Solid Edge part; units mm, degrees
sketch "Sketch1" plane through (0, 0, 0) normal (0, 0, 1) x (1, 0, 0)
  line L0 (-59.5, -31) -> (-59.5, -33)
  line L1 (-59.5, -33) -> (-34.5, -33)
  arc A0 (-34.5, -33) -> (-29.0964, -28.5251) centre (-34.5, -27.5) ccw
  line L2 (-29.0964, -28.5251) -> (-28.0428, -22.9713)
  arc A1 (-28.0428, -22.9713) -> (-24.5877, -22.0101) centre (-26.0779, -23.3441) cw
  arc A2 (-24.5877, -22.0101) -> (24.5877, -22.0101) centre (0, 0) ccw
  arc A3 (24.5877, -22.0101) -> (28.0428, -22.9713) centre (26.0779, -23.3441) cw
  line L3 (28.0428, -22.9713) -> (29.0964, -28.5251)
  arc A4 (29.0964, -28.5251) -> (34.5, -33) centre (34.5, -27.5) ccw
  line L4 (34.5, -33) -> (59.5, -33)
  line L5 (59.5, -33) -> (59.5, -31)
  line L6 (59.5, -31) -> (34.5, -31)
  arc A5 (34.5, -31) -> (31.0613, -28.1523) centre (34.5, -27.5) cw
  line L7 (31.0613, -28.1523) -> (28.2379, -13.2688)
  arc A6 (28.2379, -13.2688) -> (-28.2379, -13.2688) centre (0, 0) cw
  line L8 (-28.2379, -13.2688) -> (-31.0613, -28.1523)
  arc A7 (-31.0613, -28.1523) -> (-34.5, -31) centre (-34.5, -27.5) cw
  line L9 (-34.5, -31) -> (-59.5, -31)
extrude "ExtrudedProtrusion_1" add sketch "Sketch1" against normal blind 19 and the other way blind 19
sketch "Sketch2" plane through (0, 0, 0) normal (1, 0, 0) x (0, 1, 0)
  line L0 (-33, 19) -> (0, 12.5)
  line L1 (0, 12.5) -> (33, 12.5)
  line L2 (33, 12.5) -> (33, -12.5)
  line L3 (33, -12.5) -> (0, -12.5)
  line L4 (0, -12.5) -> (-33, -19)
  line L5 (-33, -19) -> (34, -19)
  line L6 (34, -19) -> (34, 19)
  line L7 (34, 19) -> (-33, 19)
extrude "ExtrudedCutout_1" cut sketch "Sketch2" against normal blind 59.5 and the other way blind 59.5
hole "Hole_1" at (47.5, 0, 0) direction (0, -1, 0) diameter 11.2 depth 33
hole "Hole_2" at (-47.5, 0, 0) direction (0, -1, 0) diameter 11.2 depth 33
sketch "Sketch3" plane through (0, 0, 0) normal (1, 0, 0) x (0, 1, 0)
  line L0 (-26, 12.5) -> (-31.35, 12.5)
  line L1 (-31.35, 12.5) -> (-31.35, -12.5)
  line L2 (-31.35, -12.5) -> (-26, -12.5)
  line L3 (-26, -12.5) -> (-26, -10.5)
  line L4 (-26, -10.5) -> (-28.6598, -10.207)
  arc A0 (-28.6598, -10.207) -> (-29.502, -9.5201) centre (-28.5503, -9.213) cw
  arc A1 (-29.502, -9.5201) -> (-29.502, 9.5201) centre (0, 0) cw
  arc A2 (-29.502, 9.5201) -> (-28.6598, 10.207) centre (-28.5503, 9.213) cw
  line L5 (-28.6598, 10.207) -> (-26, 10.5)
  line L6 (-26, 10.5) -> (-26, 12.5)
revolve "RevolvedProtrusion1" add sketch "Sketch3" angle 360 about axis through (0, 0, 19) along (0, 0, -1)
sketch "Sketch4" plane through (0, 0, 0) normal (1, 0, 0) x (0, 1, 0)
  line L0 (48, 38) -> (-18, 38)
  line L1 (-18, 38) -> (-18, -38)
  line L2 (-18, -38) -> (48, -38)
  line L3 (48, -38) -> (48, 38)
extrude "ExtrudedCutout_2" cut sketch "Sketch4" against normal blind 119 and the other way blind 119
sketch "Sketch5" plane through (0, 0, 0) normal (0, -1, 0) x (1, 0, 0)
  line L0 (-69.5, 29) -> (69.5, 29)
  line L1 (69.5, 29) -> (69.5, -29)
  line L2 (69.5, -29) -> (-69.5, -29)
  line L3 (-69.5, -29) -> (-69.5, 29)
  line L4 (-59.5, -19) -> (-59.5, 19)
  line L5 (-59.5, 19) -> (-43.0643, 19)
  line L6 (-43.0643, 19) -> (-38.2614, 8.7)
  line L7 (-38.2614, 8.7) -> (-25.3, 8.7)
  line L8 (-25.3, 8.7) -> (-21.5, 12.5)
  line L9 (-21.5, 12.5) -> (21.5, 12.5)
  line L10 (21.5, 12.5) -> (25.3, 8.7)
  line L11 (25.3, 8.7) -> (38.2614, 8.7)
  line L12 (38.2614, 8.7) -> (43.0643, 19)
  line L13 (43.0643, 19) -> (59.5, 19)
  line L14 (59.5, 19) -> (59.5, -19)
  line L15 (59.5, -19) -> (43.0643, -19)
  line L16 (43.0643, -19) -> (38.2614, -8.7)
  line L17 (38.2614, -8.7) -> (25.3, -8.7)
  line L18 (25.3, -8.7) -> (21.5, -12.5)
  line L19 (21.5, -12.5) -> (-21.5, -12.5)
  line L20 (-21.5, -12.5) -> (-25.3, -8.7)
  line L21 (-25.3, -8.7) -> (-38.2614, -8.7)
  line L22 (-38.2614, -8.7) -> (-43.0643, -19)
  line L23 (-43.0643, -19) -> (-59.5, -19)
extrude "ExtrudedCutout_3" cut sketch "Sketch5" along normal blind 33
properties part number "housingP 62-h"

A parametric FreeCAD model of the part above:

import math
import FreeCAD as App
import Part
import Sketcher
Q = App.Units.Quantity


def add_polygon(sketch, points):
    """Adds a closed chain of lines whose ends are joined by coincident constraints."""
    first, n = sketch.GeometryCount, len(points)
    for a, b in zip(points, points[1:] + points[:1]):
        sketch.addGeometry(Part.LineSegment(App.Vector(*a, 0), App.Vector(*b, 0)), False)
    for i in range(n):
        sketch.addConstraint(Sketcher.Constraint("Coincident", first + i, 2, first + (i + 1) % n, 1))

doc = App.newDocument("Part")
body = doc.addObject("PartDesign::Body", "Body")

# Sketch on XY plane
sketch1 = body.newObject("Sketcher::SketchObject", "Sketch")
sketch1.AttachmentSupport = (doc.getObject("XY_Plane"), [""])
sketch1.MapMode = "FlatFace"
sketch1.addGeometry(Part.LineSegment(App.Vector(-34.5, -31, 0), App.Vector(-59.5, -31, 0)), False)
sketch1.addGeometry(Part.LineSegment(App.Vector(-59.5, -31, 0), App.Vector(-59.5, -33, 0)), False)
sketch1.addGeometry(Part.LineSegment(App.Vector(-59.5, -33, 0), App.Vector(-34.5, -33, 0)), False)
sketch1.addGeometry(Part.ArcOfCircle(Part.Circle(App.Vector(-34.5, -27.5, 0), App.Vector(0, 0, 1), 5.5), math.radians(-90), math.radians(-11)), False)
sketch1.addGeometry(Part.LineSegment(App.Vector(-29.1, -28.5, 0), App.Vector(-28, -23, 0)), False)
sketch1.addGeometry(Part.ArcOfCircle(Part.Circle(App.Vector(-26.1, -23.3, 0), App.Vector(0, 0, 1), 2), math.radians(42), math.radians(169)), False)
sketch1.addGeometry(Part.ArcOfCircle(Part.Circle(App.Vector(0, 0, 0), App.Vector(0, 0, 1), 33), math.radians(-138), math.radians(-42)), False)
sketch1.addGeometry(Part.ArcOfCircle(Part.Circle(App.Vector(26.1, -23.3, 0), App.Vector(0, 0, 1), 2), math.radians(11), math.radians(138)), False)
sketch1.addGeometry(Part.LineSegment(App.Vector(28, -23, 0), App.Vector(29.1, -28.5, 0)), False)
sketch1.addGeometry(Part.ArcOfCircle(Part.Circle(App.Vector(34.5, -27.5, 0), App.Vector(0, 0, 1), 5.5), math.radians(-169), math.radians(-90)), False)
sketch1.addGeometry(Part.LineSegment(App.Vector(34.5, -33, 0), App.Vector(59.5, -33, 0)), False)
sketch1.addGeometry(Part.LineSegment(App.Vector(59.5, -33, 0), App.Vector(59.5, -31, 0)), False)
sketch1.addGeometry(Part.LineSegment(App.Vector(59.5, -31, 0), App.Vector(34.5, -31, 0)), False)
sketch1.addGeometry(Part.ArcOfCircle(Part.Circle(App.Vector(34.5, -27.5, 0), App.Vector(0, 0, 1), 3.5), math.radians(-169), math.radians(-90)), False)
sketch1.addGeometry(Part.LineSegment(App.Vector(31.1, -28.2, 0), App.Vector(28.2, -13.3, 0)), False)
sketch1.addGeometry(Part.ArcOfCircle(Part.Circle(App.Vector(0, 0, 0), App.Vector(0, 0, 1), 31.2), math.radians(-155), math.radians(-25)), False)
sketch1.addGeometry(Part.LineSegment(App.Vector(-28.2, -13.3, 0), App.Vector(-31.1, -28.2, 0)), False)
sketch1.addGeometry(Part.ArcOfCircle(Part.Circle(App.Vector(-34.5, -27.5, 0), App.Vector(0, 0, 1), 3.5), math.radians(-90), math.radians(-11)), False)
sketch1.addConstraint(Sketcher.Constraint("Coincident", 0, 2, 1, 1))
sketch1.addConstraint(Sketcher.Constraint("Coincident", 1, 2, 2, 1))
sketch1.addConstraint(Sketcher.Constraint("Tangent", 2, 2, 3, 1))
sketch1.addConstraint(Sketcher.Constraint("Tangent", 3, 2, 4, 1))
sketch1.addConstraint(Sketcher.Constraint("Tangent", 4, 2, 5, 2))
sketch1.addConstraint(Sketcher.Constraint("Tangent", 5, 1, 6, 1))
sketch1.addConstraint(Sketcher.Constraint("Tangent", 6, 2, 7, 2))
sketch1.addConstraint(Sketcher.Constraint("Tangent", 7, 1, 8, 1))
sketch1.addConstraint(Sketcher.Constraint("Tangent", 8, 2, 9, 1))
sketch1.addConstraint(Sketcher.Constraint("Tangent", 9, 2, 10, 1))
sketch1.addConstraint(Sketcher.Constraint("Coincident", 10, 2, 11, 1))
sketch1.addConstraint(Sketcher.Constraint("Coincident", 11, 2, 12, 1))
sketch1.addConstraint(Sketcher.Constraint("Tangent", 12, 2, 13, 2))
sketch1.addConstraint(Sketcher.Constraint("Tangent", 13, 1, 14, 1))
sketch1.addConstraint(Sketcher.Constraint("Coincident", 14, 2, 15, 2))
sketch1.addConstraint(Sketcher.Constraint("Coincident", 15, 1, 16, 1))
sketch1.addConstraint(Sketcher.Constraint("Tangent", 16, 2, 17, 2))
sketch1.addConstraint(Sketcher.Constraint("Tangent", 17, 1, 0, 1))
sketch1.addConstraint(Sketcher.Constraint("Horizontal", 0))
sketch1.addConstraint(Sketcher.Constraint("Vertical", 1))
sketch1.addConstraint(Sketcher.Constraint("Horizontal", 2))
sketch1.addConstraint(Sketcher.Constraint("Horizontal", 10))
sketch1.addConstraint(Sketcher.Constraint("Vertical", 11))
sketch1.addConstraint(Sketcher.Constraint("Horizontal", 12))
sketch1.addConstraint(Sketcher.Constraint("Coincident", 6, 3, -1, 1))
sketch1.addConstraint(Sketcher.Constraint("Coincident", 15, 3, -1, 1))
sketch1.addConstraint(Sketcher.Constraint("Coincident", 13, 3, 9, 3))
sketch1.addConstraint(Sketcher.Constraint("Coincident", 17, 3, 3, 3))
sketch1.addConstraint(Sketcher.Constraint("Equal", 5, 7))
sketch1.addConstraint(Sketcher.Constraint("Equal", 3, 9))
sketch1.addConstraint(Sketcher.Constraint("Equal", 13, 17))
sketch1.addConstraint(Sketcher.Constraint("Symmetric", 3, 3, 9, 3, -2))
sketch1.addConstraint(Sketcher.Constraint("Parallel", 8, 14))
sketch1.addConstraint(Sketcher.Constraint("Parallel", 4, 16))
sketch1.addConstraint(Sketcher.Constraint("Horizontal", 5, 3, 7, 3))
sketch1.addConstraint(Sketcher.Constraint("Equal", 2, 10))
sketch1.addConstraint(Sketcher.Constraint("Radius", 5, Q("2 mm")))
sketch1.addConstraint(Sketcher.Constraint("Radius", 6, Q("33 mm")))
sketch1.addConstraint(Sketcher.Constraint("Radius", 3, Q("5.5 mm")))
sketch1.addConstraint(Sketcher.Constraint("Radius", 13, Q("3.5 mm")))
sketch1.addConstraint(Sketcher.Constraint("Radius", 15, Q("31.2 mm")))
sketch1.addConstraint(Sketcher.Constraint("DistanceX", 0, 2, 0, 1, Q("25 mm")))
sketch1.addConstraint(Sketcher.Constraint("DistanceY", 0, 2, -1, 1, Q("31 mm")))
sketch1.addConstraint(Sketcher.Constraint("DistanceX", 3, 3, 9, 3, Q("69 mm")))
sketch1.addConstraint(Sketcher.Constraint("DistanceY", 6, 2, -1, 1, Q("22.01 mm")))
pad1 = body.newObject("PartDesign::Pad", "Pad")
pad1.Profile = sketch1
pad1.Type = "TwoLengths"
pad1.Length = 19
pad1.Length2 = 19
pad1.Reversed = True

# Sketch on YZ plane
sketch2 = body.newObject("Sketcher::SketchObject", "Sketch001")
sketch2.AttachmentSupport = (doc.getObject("YZ_Plane"), [""])
sketch2.MapMode = "FlatFace"
add_polygon(sketch2, [(34, 19), (-33, 19), (0, 12), (33, 12), (33, -12), (0, -12), (-33, -19), (34, -19)])  # lines 0-7
sketch2.addConstraint(Sketcher.Constraint("Horizontal", 0))
sketch2.addConstraint(Sketcher.Constraint("Horizontal", 2))
sketch2.addConstraint(Sketcher.Constraint("Vertical", 3))
sketch2.addConstraint(Sketcher.Constraint("Horizontal", 4))
sketch2.addConstraint(Sketcher.Constraint("Horizontal", 6))
sketch2.addConstraint(Sketcher.Constraint("Vertical", 7))
sketch2.addConstraint(Sketcher.Constraint("Symmetric", 1, 2, 4, 2, -1, 1))
sketch2.addConstraint(Sketcher.Constraint("Symmetric", 0, 2, 5, 2, -1))
sketch2.addConstraint(Sketcher.Constraint("PointOnObject", 1, 2, -2))
sketch2.addConstraint(Sketcher.Constraint("DistanceX", 0, 2, 0, 1, Q("67 mm")))
sketch2.addConstraint(Sketcher.Constraint("DistanceX", 2, 1, 2, 2, Q("33 mm")))
sketch2.addConstraint(Sketcher.Constraint("DistanceY", 3, 2, 3, 1, Q("25 mm")))
sketch2.addConstraint(Sketcher.Constraint("DistanceY", 7, 1, 7, 2, Q("38 mm")))
sketch2.addConstraint(Sketcher.Constraint("DistanceX", 0, 2, -1, 1, Q("33 mm")))
pocket1 = body.newObject("PartDesign::Pocket", "Pocket")
pocket1.Profile = sketch2
pocket1.Type = "ThroughAll"
pocket1.Midplane = True

# Sketch on XZ plane
sketch3 = body.newObject("Sketcher::SketchObject", "Sketch002")
sketch3.AttachmentSupport = (doc.getObject("XZ_Plane"), [""])
sketch3.MapMode = "FlatFace"
sketch3.addGeometry(Part.Circle(App.Vector(48, 0, 0), App.Vector(0, 0, 1), 6), False)
sketch3.addConstraint(Sketcher.Constraint("PointOnObject", 0, 3, -1))
sketch3.addConstraint(Sketcher.Constraint("Diameter", 0, Q("11.2 mm")))
sketch3.addConstraint(Sketcher.Constraint("DistanceX", -1, 1, 0, 3, Q("47.5 mm")))
doc.recompute()
hole = body.newObject("PartDesign::Hole", "Hole")
hole.Profile = sketch3
hole.ThreadType = "None"
hole.Diameter = 11.2
hole.DepthType = "Dimension"
hole.Depth = 33
hole.DrillPoint = "Flat"
hole.Reversed = True

# Sketch on XZ plane
sketch4 = body.newObject("Sketcher::SketchObject", "Sketch003")
sketch4.AttachmentSupport = (doc.getObject("XZ_Plane"), [""])
sketch4.MapMode = "FlatFace"
sketch4.addGeometry(Part.Circle(App.Vector(-48, 0, 0), App.Vector(0, 0, 1), 6), False)
sketch4.addConstraint(Sketcher.Constraint("PointOnObject", 0, 3, -1))
sketch4.addConstraint(Sketcher.Constraint("Diameter", 0, Q("11.2 mm")))
sketch4.addConstraint(Sketcher.Constraint("DistanceX", 0, 3, -1, 1, Q("47.5 mm")))
doc.recompute()
hole2 = body.newObject("PartDesign::Hole", "Hole001")
hole2.Profile = sketch4
hole2.ThreadType = "None"
hole2.Diameter = 11.2
hole2.DepthType = "Dimension"
hole2.Depth = 33
hole2.DrillPoint = "Flat"
hole2.Reversed = True

# Sketch on YZ plane
sketch5 = body.newObject("Sketcher::SketchObject", "Sketch004")
sketch5.AttachmentSupport = (doc.getObject("YZ_Plane"), [""])
sketch5.MapMode = "FlatFace"
sketch5.addGeometry(Part.LineSegment(App.Vector(-26, 10.5, 0), App.Vector(-26, 12.5, 0)), False)
sketch5.addGeometry(Part.LineSegment(App.Vector(-26, 12.5, 0), App.Vector(-31.4, 12.5, 0)), False)
sketch5.addGeometry(Part.LineSegment(App.Vector(-31.4, 12.5, 0), App.Vector(-31.4, -12.5, 0)), False)
sketch5.addGeometry(Part.LineSegment(App.Vector(-31.4, -12.5, 0), App.Vector(-26, -12.5, 0)), False)
sketch5.addGeometry(Part.LineSegment(App.Vector(-26, -12.5, 0), App.Vector(-26, -10.5, 0)), False)
sketch5.addGeometry(Part.LineSegment(App.Vector(-26, -10.5, 0), App.Vector(-28.7, -10.2, 0)), False)
sketch5.addGeometry(Part.ArcOfCircle(Part.Circle(App.Vector(-28.6, -9.2, 0), App.Vector(0, 0, 1), 1), math.radians(-162), math.radians(-96)), False)
sketch5.addGeometry(Part.ArcOfCircle(Part.Circle(App.Vector(0, 0, 0), App.Vector(0, 0, 1), 31), math.radians(162), math.radians(198)), False)
sketch5.addGeometry(Part.ArcOfCircle(Part.Circle(App.Vector(-28.6, 9.2, 0), App.Vector(0, 0, 1), 1), math.radians(96), math.radians(162)), False)
sketch5.addGeometry(Part.LineSegment(App.Vector(-28.7, 10.2, 0), App.Vector(-26, 10.5, 0)), False)
sketch5.addConstraint(Sketcher.Constraint("Coincident", 0, 2, 1, 1))
sketch5.addConstraint(Sketcher.Constraint("Coincident", 1, 2, 2, 1))
sketch5.addConstraint(Sketcher.Constraint("Coincident", 2, 2, 3, 1))
sketch5.addConstraint(Sketcher.Constraint("Coincident", 3, 2, 4, 1))
sketch5.addConstraint(Sketcher.Constraint("Coincident", 4, 2, 5, 1))
sketch5.addConstraint(Sketcher.Constraint("Tangent", 5, 2, 6, 2))
sketch5.addConstraint(Sketcher.Constraint("Tangent", 6, 1, 7, 2))
sketch5.addConstraint(Sketcher.Constraint("Tangent", 7, 1, 8, 2))
sketch5.addConstraint(Sketcher.Constraint("Tangent", 8, 1, 9, 1))
sketch5.addConstraint(Sketcher.Constraint("Coincident", 9, 2, 0, 1))
sketch5.addConstraint(Sketcher.Constraint("Vertical", 0))
sketch5.addConstraint(Sketcher.Constraint("Horizontal", 1))
sketch5.addConstraint(Sketcher.Constraint("Vertical", 2))
sketch5.addConstraint(Sketcher.Constraint("Horizontal", 3))
sketch5.addConstraint(Sketcher.Constraint("Vertical", 4))
sketch5.addConstraint(Sketcher.Constraint("Coincident", 7, 3, -1, 1))
sketch5.addConstraint(Sketcher.Constraint("Equal", 6, 8))
sketch5.addConstraint(Sketcher.Constraint("Symmetric", 0, 2, 3, 2, -1))
sketch5.addConstraint(Sketcher.Constraint("Symmetric", 5, 2, 8, 1, -1))
sketch5.addConstraint(Sketcher.Constraint("Radius", 6, Q("1 mm")))
sketch5.addConstraint(Sketcher.Constraint("Radius", 7, Q("31 mm")))
sketch5.addConstraint(Sketcher.Constraint("DistanceY", 0, 1, 0, 2, Q("2 mm")))
sketch5.addConstraint(Sketcher.Constraint("DistanceY", 2, 2, 2, 1, Q("25 mm")))
sketch5.addConstraint(Sketcher.Constraint("DistanceX", 0, 2, -1, 1, Q("26 mm")))
sketch5.addConstraint(Sketcher.Constraint("DistanceX", 1, 2, 1, 1, Q("5.35 mm")))
sketch5.addConstraint(Sketcher.Constraint("DistanceY", 6, 1, -1, 1, Q("9.52 mm")))
revolution = body.newObject("PartDesign::Revolution", "Revolution")
revolution.Profile = sketch5
revolution.ReferenceAxis = (sketch5, ["V_Axis"])
revolution.Angle = 360

# Sketch on YZ plane
sketch6 = body.newObject("Sketcher::SketchObject", "Sketch005")
sketch6.AttachmentSupport = (doc.getObject("YZ_Plane"), [""])
sketch6.MapMode = "FlatFace"
add_polygon(sketch6, [(48, -38), (48, 38), (-18, 38), (-18, -38)])  # lines 0-3
sketch6.addConstraint(Sketcher.Constraint("Vertical", 0))
sketch6.addConstraint(Sketcher.Constraint("Horizontal", 1))
sketch6.addConstraint(Sketcher.Constraint("Vertical", 2))
sketch6.addConstraint(Sketcher.Constraint("Horizontal", 3))
sketch6.addConstraint(Sketcher.Constraint("DistanceX", 1, 2, 1, 1, Q("66 mm")))
sketch6.addConstraint(Sketcher.Constraint("DistanceY", 0, 1, 0, 2, Q("76 mm")))
sketch6.addConstraint(Sketcher.Constraint("DistanceX", -1, 1, 0, 2, Q("48 mm")))
sketch6.addConstraint(Sketcher.Constraint("DistanceY", -1, 1, 0, 2, Q("38 mm")))
pocket2 = body.newObject("PartDesign::Pocket", "Pocket001")
pocket2.Profile = sketch6
pocket2.Type = "ThroughAll"
pocket2.Midplane = True

# Sketch on XZ plane
sketch7 = body.newObject("Sketcher::SketchObject", "Sketch006")
sketch7.AttachmentSupport = (doc.getObject("XZ_Plane"), [""])
sketch7.MapMode = "FlatFace"
add_polygon(sketch7, [(70, 29), (-70, 29), (-70, -29), (70, -29)])  # lines 0-3
add_polygon(sketch7, [(-43, -19), (-60, -19), (-60, 19), (-43, 19), (-38, 9), (-25, 9), (-22, 12), (22, 12), (25, 9), (38, 9), (43, 19), (60, 19), (60, -19), (43, -19), (38, -9), (25, -9), (22, -12), (-22, -12), (-25, -9), (-38, -9)])  # lines 4-23
sketch7.addConstraint(Sketcher.Constraint("Horizontal", 0))
sketch7.addConstraint(Sketcher.Constraint("Vertical", 1))
sketch7.addConstraint(Sketcher.Constraint("Horizontal", 2))
sketch7.addConstraint(Sketcher.Constraint("Vertical", 3))
sketch7.addConstraint(Sketcher.Constraint("Horizontal", 4))
sketch7.addConstraint(Sketcher.Constraint("Vertical", 5))
sketch7.addConstraint(Sketcher.Constraint("Horizontal", 6))
sketch7.addConstraint(Sketcher.Constraint("Horizontal", 8))
sketch7.addConstraint(Sketcher.Constraint("Horizontal", 10))
sketch7.addConstraint(Sketcher.Constraint("Horizontal", 12))
sketch7.addConstraint(Sketcher.Constraint("Horizontal", 14))
sketch7.addConstraint(Sketcher.Constraint("Vertical", 15))
sketch7.addConstraint(Sketcher.Constraint("Horizontal", 16))
sketch7.addConstraint(Sketcher.Constraint("Horizontal", 18))
sketch7.addConstraint(Sketcher.Constraint("Horizontal", 20))
sketch7.addConstraint(Sketcher.Constraint("Horizontal", 22))
sketch7.addConstraint(Sketcher.Constraint("Symmetric", 0, 2, 2, 2, -1, 1))
sketch7.addConstraint(Sketcher.Constraint("Symmetric", 4, 2, 14, 2, -1, 1))
sketch7.addConstraint(Sketcher.Constraint("Symmetric", 6, 2, 16, 2, -1, 1))
sketch7.addConstraint(Sketcher.Constraint("Symmetric", 7, 2, 17, 2, -1, 1))
sketch7.addConstraint(Sketcher.Constraint("Symmetric", 9, 2, 19, 2, -1, 1))
sketch7.addConstraint(Sketcher.Constraint("Symmetric", 11, 2, 21, 2, -1, 1))
sketch7.addConstraint(Sketcher.Constraint("Symmetric", 8, 2, 11, 2, -2))
sketch7.addConstraint(Sketcher.Constraint("Symmetric", 6, 2, 13, 2, -2))
sketch7.addConstraint(Sketcher.Constraint("Perpendicular", 9, 11))
sketch7.addConstraint(Sketcher.Constraint("Perpendicular", 11, 19))
sketch7.addConstraint(Sketcher.Constraint("Perpendicular", 19, 21))
sketch7.addConstraint(Sketcher.Constraint("Parallel", 13, 23))
sketch7.addConstraint(Sketcher.Constraint("Vertical", 12, 2, 17, 2))
sketch7.addConstraint(Sketcher.Constraint("Vertical", 10, 2, 19, 2))
sketch7.addConstraint(Sketcher.Constraint("Vertical", 7, 2, 22, 2))
sketch7.addConstraint(Sketcher.Constraint("DistanceX", 0, 2, 0, 1, Q("139 mm")))
sketch7.addConstraint(Sketcher.Constraint("DistanceX", 10, 1, 10, 2, Q("43 mm")))
sketch7.addConstraint(Sketcher.Constraint("DistanceY", 1, 2, 1, 1, Q("58 mm")))
sketch7.addConstraint(Sketcher.Constraint("DistanceY", 5, 1, 5, 2, Q("38 mm")))
sketch7.addConstraint(Sketcher.Constraint("Angle", 7, Q("-65.0003 deg")))
sketch7.addConstraint(Sketcher.Constraint("DistanceX", 1, 2, 4, 2, Q("10 mm")))
sketch7.addConstraint(Sketcher.Constraint("DistanceY", 19, 2, 10, 2, Q("25 mm")))
sketch7.addConstraint(Sketcher.Constraint("DistanceY", -1, 1, 7, 2, Q("8.7 mm")))
sketch7.addConstraint(Sketcher.Constraint("DistanceX", 4, 2, 4, 1, Q("16.4357 mm")))
pocket3 = body.newObject("PartDesign::Pocket", "Pocket002")
pocket3.Profile = sketch7
pocket3.Length = 33
pocket3.Reversed = True

doc.recompute()
